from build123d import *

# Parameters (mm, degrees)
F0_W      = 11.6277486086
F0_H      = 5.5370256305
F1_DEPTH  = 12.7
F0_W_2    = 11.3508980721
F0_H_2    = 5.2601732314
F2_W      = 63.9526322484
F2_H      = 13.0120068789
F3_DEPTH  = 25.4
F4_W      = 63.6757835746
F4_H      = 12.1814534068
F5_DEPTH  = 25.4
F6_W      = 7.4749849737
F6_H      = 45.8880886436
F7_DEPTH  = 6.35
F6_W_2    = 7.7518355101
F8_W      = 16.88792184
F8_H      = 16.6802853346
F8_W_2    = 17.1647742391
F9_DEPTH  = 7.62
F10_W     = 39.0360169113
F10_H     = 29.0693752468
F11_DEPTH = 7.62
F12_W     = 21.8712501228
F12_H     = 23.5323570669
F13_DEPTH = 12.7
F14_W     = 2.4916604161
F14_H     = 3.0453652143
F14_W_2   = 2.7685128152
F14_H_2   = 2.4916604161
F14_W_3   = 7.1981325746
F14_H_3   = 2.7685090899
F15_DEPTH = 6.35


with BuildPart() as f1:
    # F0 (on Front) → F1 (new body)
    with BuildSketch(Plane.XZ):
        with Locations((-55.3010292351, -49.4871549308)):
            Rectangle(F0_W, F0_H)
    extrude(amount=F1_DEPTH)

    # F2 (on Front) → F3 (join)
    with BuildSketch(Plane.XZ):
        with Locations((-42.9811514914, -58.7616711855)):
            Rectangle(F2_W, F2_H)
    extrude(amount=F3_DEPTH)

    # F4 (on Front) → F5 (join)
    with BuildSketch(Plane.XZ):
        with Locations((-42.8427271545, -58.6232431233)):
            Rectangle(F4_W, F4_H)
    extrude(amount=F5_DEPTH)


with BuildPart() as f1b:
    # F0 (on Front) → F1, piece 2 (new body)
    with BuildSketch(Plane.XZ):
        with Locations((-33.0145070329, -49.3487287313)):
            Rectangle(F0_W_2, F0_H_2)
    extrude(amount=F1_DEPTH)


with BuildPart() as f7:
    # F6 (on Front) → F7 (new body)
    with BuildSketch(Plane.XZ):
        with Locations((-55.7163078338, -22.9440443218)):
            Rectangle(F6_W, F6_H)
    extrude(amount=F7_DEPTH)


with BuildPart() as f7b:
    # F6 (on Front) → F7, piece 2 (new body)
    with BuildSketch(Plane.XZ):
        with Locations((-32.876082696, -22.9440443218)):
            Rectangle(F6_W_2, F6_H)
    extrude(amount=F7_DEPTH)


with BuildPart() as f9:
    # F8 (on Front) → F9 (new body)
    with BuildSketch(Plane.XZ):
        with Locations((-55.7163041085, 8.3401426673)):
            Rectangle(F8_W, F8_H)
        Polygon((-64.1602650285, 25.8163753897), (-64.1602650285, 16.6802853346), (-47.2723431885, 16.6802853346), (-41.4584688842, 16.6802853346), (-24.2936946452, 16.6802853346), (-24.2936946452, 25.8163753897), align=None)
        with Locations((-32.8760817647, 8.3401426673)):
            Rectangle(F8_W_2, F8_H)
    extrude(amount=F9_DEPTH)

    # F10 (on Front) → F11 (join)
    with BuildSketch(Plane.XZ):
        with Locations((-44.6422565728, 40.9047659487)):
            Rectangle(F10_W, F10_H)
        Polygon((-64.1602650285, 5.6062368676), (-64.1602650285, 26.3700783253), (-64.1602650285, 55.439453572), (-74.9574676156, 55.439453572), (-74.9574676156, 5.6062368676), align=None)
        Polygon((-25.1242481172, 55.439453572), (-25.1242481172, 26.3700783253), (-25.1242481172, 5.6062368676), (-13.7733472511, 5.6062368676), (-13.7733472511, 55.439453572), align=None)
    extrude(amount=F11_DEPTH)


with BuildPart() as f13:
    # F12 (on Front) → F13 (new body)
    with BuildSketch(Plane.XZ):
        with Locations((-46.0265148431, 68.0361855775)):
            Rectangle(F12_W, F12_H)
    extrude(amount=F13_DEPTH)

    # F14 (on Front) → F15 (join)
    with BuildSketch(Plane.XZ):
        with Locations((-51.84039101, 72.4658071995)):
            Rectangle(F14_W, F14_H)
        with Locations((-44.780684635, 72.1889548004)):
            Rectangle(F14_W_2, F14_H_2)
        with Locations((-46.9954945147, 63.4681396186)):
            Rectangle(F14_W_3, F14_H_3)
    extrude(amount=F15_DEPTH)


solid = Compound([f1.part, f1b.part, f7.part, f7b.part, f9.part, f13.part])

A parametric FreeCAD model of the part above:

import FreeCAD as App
import Part
import Sketcher

V = App.Vector

doc = App.newDocument("Part")
params = doc.addObject("Spreadsheet::Sheet", "Params")
for row, (alias, value) in enumerate([
    ("pad1_length", "0.5 in"),
    ("pad2_length", "1 in"),
    ("pad3_length", "1 in"),
    ("pad4_length", "0.5 in"),
    ("pad5_length", "0.25 in"),
    ("pad6_length", "0.25 in"),
    ("pad7_length", "0.3 in"),
    ("pad8_length", "0.3 in"),
    ("pad9_length", "0.5 in"),
    ("pad10_length", "0.25 in"),
], start=1):
    params.set(f"A{row}", alias)
    params.set(f"B{row}", "=" + value)
    params.setAlias(f"B{row}", alias)

body = doc.addObject("PartDesign::Body", "Body")

sketch1 = body.newObject("Sketcher::SketchObject", "Sketch")
sketch1.AttachmentSupport = (doc.getObject("XZ_Plane"), [""])
sketch1.MapMode = "FlatFace"
sketch1.addGeometry(Part.LineSegment(V(-61, -47, 0), V(-61, -52, 0)), False)
sketch1.addGeometry(Part.LineSegment(V(-61, -52, 0), V(-49, -52, 0)), False)
sketch1.addGeometry(Part.LineSegment(V(-49, -52, 0), V(-49, -47, 0)), False)
sketch1.addGeometry(Part.LineSegment(V(-49, -47, 0), V(-61, -47, 0)), False)
sketch1.addConstraint(Sketcher.Constraint("Coincident", 0, 2, 1, 1))
sketch1.addConstraint(Sketcher.Constraint("Coincident", 1, 2, 2, 1))
sketch1.addConstraint(Sketcher.Constraint("Coincident", 2, 2, 3, 1))
sketch1.addConstraint(Sketcher.Constraint("Coincident", 3, 2, 0, 1))
sketch1.addConstraint(Sketcher.Constraint("Vertical", 0))
sketch1.addConstraint(Sketcher.Constraint("Horizontal", 1))
sketch1.addConstraint(Sketcher.Constraint("Vertical", 2))
sketch1.addConstraint(Sketcher.Constraint("Horizontal", 3))
sketch1.addConstraint(Sketcher.Constraint("DistanceX", 1, 1, 1, 2, 11.627749))
sketch1.addConstraint(Sketcher.Constraint("DistanceY", 0, 2, 0, 1, 5.537026))
sketch1.addConstraint(Sketcher.Constraint("DistanceX", 0, 2, -1, 1, 61.114904))
sketch1.addConstraint(Sketcher.Constraint("DistanceY", 0, 2, -1, 1, 52.255668))
pad1 = body.newObject("PartDesign::Pad", "Pad")
pad1.Profile = sketch1
pad1.setExpression("Length", "Params.pad1_length")

sketch2 = body.newObject("Sketcher::SketchObject", "Sketch001")
sketch2.AttachmentSupport = (doc.getObject("XZ_Plane"), [""])
sketch2.MapMode = "FlatFace"
sketch2.addGeometry(Part.LineSegment(V(-75, -52, 0), V(-75, -65, 0)), False)
sketch2.addGeometry(Part.LineSegment(V(-75, -65, 0), V(-11, -65, 0)), False)
sketch2.addGeometry(Part.LineSegment(V(-11, -65, 0), V(-11, -52, 0)), False)
sketch2.addGeometry(Part.LineSegment(V(-11, -52, 0), V(-75, -52, 0)), False)
sketch2.addConstraint(Sketcher.Constraint("Coincident", 0, 2, 1, 1))
sketch2.addConstraint(Sketcher.Constraint("Coincident", 1, 2, 2, 1))
sketch2.addConstraint(Sketcher.Constraint("Coincident", 2, 2, 3, 1))
sketch2.addConstraint(Sketcher.Constraint("Coincident", 3, 2, 0, 1))
sketch2.addConstraint(Sketcher.Constraint("Vertical", 0))
sketch2.addConstraint(Sketcher.Constraint("Horizontal", 1))
sketch2.addConstraint(Sketcher.Constraint("Vertical", 2))
sketch2.addConstraint(Sketcher.Constraint("Horizontal", 3))
sketch2.addConstraint(Sketcher.Constraint("DistanceX", 1, 1, 1, 2, 63.952632))
sketch2.addConstraint(Sketcher.Constraint("DistanceY", 0, 2, 0, 1, 13.012007))
sketch2.addConstraint(Sketcher.Constraint("DistanceX", 0, 2, -1, 1, 74.957468))
sketch2.addConstraint(Sketcher.Constraint("DistanceY", 0, 2, -1, 1, 65.267675))
pad2 = body.newObject("PartDesign::Pad", "Pad001")
pad2.Profile = sketch2
pad2.setExpression("Length", "Params.pad2_length")

sketch3 = body.newObject("Sketcher::SketchObject", "Sketch002")
sketch3.AttachmentSupport = (doc.getObject("XZ_Plane"), [""])
sketch3.MapMode = "FlatFace"
sketch3.addGeometry(Part.LineSegment(V(-75, -53, 0), V(-75, -65, 0)), False)
sketch3.addGeometry(Part.LineSegment(V(-75, -65, 0), V(-11, -65, 0)), False)
sketch3.addGeometry(Part.LineSegment(V(-11, -65, 0), V(-11, -53, 0)), False)
sketch3.addGeometry(Part.LineSegment(V(-11, -53, 0), V(-75, -53, 0)), False)
sketch3.addConstraint(Sketcher.Constraint("Coincident", 0, 2, 1, 1))
sketch3.addConstraint(Sketcher.Constraint("Coincident", 1, 2, 2, 1))
sketch3.addConstraint(Sketcher.Constraint("Coincident", 2, 2, 3, 1))
sketch3.addConstraint(Sketcher.Constraint("Coincident", 3, 2, 0, 1))
sketch3.addConstraint(Sketcher.Constraint("Vertical", 0))
sketch3.addConstraint(Sketcher.Constraint("Horizontal", 1))
sketch3.addConstraint(Sketcher.Constraint("Vertical", 2))
sketch3.addConstraint(Sketcher.Constraint("Horizontal", 3))
sketch3.addConstraint(Sketcher.Constraint("DistanceX", 1, 1, 1, 2, 63.675784))
sketch3.addConstraint(Sketcher.Constraint("DistanceY", 0, 2, 0, 1, 12.181453))
sketch3.addConstraint(Sketcher.Constraint("DistanceX", 0, 2, -1, 1, 74.680619))
sketch3.addConstraint(Sketcher.Constraint("DistanceY", 0, 2, -1, 1, 64.71397))
pad3 = body.newObject("PartDesign::Pad", "Pad002")
pad3.Profile = sketch3
pad3.setExpression("Length", "Params.pad3_length")
body2 = doc.addObject("PartDesign::Body", "Body001")

sketch4 = body2.newObject("Sketcher::SketchObject", "Sketch003")
sketch4.AttachmentSupport = (doc.getObject("XZ_Plane001"), [""])
sketch4.MapMode = "FlatFace"
sketch4.addGeometry(Part.LineSegment(V(-39, -47, 0), V(-39, -52, 0)), False)
sketch4.addGeometry(Part.LineSegment(V(-39, -52, 0), V(-27, -52, 0)), False)
sketch4.addGeometry(Part.LineSegment(V(-27, -52, 0), V(-27, -47, 0)), False)
sketch4.addGeometry(Part.LineSegment(V(-27, -47, 0), V(-39, -47, 0)), False)
sketch4.addConstraint(Sketcher.Constraint("Coincident", 0, 2, 1, 1))
sketch4.addConstraint(Sketcher.Constraint("Coincident", 1, 2, 2, 1))
sketch4.addConstraint(Sketcher.Constraint("Coincident", 2, 2, 3, 1))
sketch4.addConstraint(Sketcher.Constraint("Coincident", 3, 2, 0, 1))
sketch4.addConstraint(Sketcher.Constraint("Vertical", 0))
sketch4.addConstraint(Sketcher.Constraint("Horizontal", 1))
sketch4.addConstraint(Sketcher.Constraint("Vertical", 2))
sketch4.addConstraint(Sketcher.Constraint("Horizontal", 3))
sketch4.addConstraint(Sketcher.Constraint("DistanceX", 1, 1, 1, 2, 11.350898))
sketch4.addConstraint(Sketcher.Constraint("DistanceY", 0, 2, 0, 1, 5.260173))
sketch4.addConstraint(Sketcher.Constraint("DistanceX", 0, 2, -1, 1, 38.689956))
sketch4.addConstraint(Sketcher.Constraint("DistanceY", 0, 2, -1, 1, 51.978815))
pad4 = body2.newObject("PartDesign::Pad", "Pad003")
pad4.Profile = sketch4
pad4.setExpression("Length", "Params.pad4_length")
body3 = doc.addObject("PartDesign::Body", "Body002")

sketch5 = body3.newObject("Sketcher::SketchObject", "Sketch004")
sketch5.AttachmentSupport = (doc.getObject("XZ_Plane002"), [""])
sketch5.MapMode = "FlatFace"
sketch5.addGeometry(Part.LineSegment(V(-59, 0, 0), V(-59, -46, 0)), False)
sketch5.addGeometry(Part.LineSegment(V(-59, -46, 0), V(-52, -46, 0)), False)
sketch5.addGeometry(Part.LineSegment(V(-52, -46, 0), V(-52, 0, 0)), False)
sketch5.addGeometry(Part.LineSegment(V(-52, 0, 0), V(-59, 0, 0)), False)
sketch5.addConstraint(Sketcher.Constraint("Coincident", 0, 2, 1, 1))
sketch5.addConstraint(Sketcher.Constraint("Coincident", 1, 2, 2, 1))
sketch5.addConstraint(Sketcher.Constraint("Coincident", 2, 2, 3, 1))
sketch5.addConstraint(Sketcher.Constraint("Coincident", 3, 2, 0, 1))
sketch5.addConstraint(Sketcher.Constraint("Vertical", 0))
sketch5.addConstraint(Sketcher.Constraint("Horizontal", 1))
sketch5.addConstraint(Sketcher.Constraint("Vertical", 2))
sketch5.addConstraint(Sketcher.Constraint("Horizontal", 3))
sketch5.addConstraint(Sketcher.Constraint("PointOnObject", 2, 2, -1))
sketch5.addConstraint(Sketcher.Constraint("DistanceY", 0, 2, 0, 1, 45.888089))
sketch5.addConstraint(Sketcher.Constraint("DistanceX", 0, 2, -1, 1, 59.4538))
sketch5.addConstraint(Sketcher.Constraint("DistanceX", 1, 1, 1, 2, 7.474985))
pad5 = body3.newObject("PartDesign::Pad", "Pad004")
pad5.Profile = sketch5
pad5.setExpression("Length", "Params.pad5_length")
body4 = doc.addObject("PartDesign::Body", "Body003")

sketch6 = body4.newObject("Sketcher::SketchObject", "Sketch005")
sketch6.AttachmentSupport = (doc.getObject("XZ_Plane003"), [""])
sketch6.MapMode = "FlatFace"
sketch6.addGeometry(Part.LineSegment(V(-37, 0, 0), V(-37, -46, 0)), False)
sketch6.addGeometry(Part.LineSegment(V(-37, -46, 0), V(-29, -46, 0)), False)
sketch6.addGeometry(Part.LineSegment(V(-29, -46, 0), V(-29, 0, 0)), False)
sketch6.addGeometry(Part.LineSegment(V(-29, 0, 0), V(-37, 0, 0)), False)
sketch6.addConstraint(Sketcher.Constraint("Coincident", 0, 2, 1, 1))
sketch6.addConstraint(Sketcher.Constraint("Coincident", 1, 2, 2, 1))
sketch6.addConstraint(Sketcher.Constraint("Coincident", 2, 2, 3, 1))
sketch6.addConstraint(Sketcher.Constraint("Coincident", 3, 2, 0, 1))
sketch6.addConstraint(Sketcher.Constraint("Vertical", 0))
sketch6.addConstraint(Sketcher.Constraint("Horizontal", 1))
sketch6.addConstraint(Sketcher.Constraint("Vertical", 2))
sketch6.addConstraint(Sketcher.Constraint("Horizontal", 3))
sketch6.addConstraint(Sketcher.Constraint("PointOnObject", 2, 2, -1))
sketch6.addConstraint(Sketcher.Constraint("DistanceY", 0, 2, 0, 1, 45.888089))
sketch6.addConstraint(Sketcher.Constraint("DistanceX", 0, 2, -1, 1, 36.752))
sketch6.addConstraint(Sketcher.Constraint("DistanceX", 1, 1, 1, 2, 7.751836))
pad6 = body4.newObject("PartDesign::Pad", "Pad005")
pad6.Profile = sketch6
pad6.setExpression("Length", "Params.pad6_length")
body5 = doc.addObject("PartDesign::Body", "Body004")

sketch7 = body5.newObject("Sketcher::SketchObject", "Sketch006")
sketch7.AttachmentSupport = (doc.getObject("XZ_Plane004"), [""])
sketch7.MapMode = "FlatFace"
sketch7.addGeometry(Part.LineSegment(V(-64, 0, 0), V(-47, 0, 0)), False)
sketch7.addGeometry(Part.LineSegment(V(-47, 0, 0), V(-47, 17, 0)), False)
sketch7.addGeometry(Part.LineSegment(V(-47, 17, 0), V(-41, 17, 0)), False)
sketch7.addGeometry(Part.LineSegment(V(-41, 17, 0), V(-41, 0, 0)), False)
sketch7.addGeometry(Part.LineSegment(V(-41, 0, 0), V(-24, 0, 0)), False)
sketch7.addGeometry(Part.LineSegment(V(-24, 0, 0), V(-24, 17, 0)), False)
sketch7.addGeometry(Part.LineSegment(V(-24, 17, 0), V(-24, 26, 0)), False)
sketch7.addGeometry(Part.LineSegment(V(-24, 26, 0), V(-64, 26, 0)), False)
sketch7.addGeometry(Part.LineSegment(V(-64, 26, 0), V(-64, 0, 0)), False)
sketch7.addConstraint(Sketcher.Constraint("Coincident", 0, 2, 1, 1))
sketch7.addConstraint(Sketcher.Constraint("Coincident", 1, 2, 2, 1))
sketch7.addConstraint(Sketcher.Constraint("Coincident", 2, 2, 3, 1))
sketch7.addConstraint(Sketcher.Constraint("Coincident", 3, 2, 4, 1))
sketch7.addConstraint(Sketcher.Constraint("Coincident", 4, 2, 5, 1))
sketch7.addConstraint(Sketcher.Constraint("Coincident", 5, 2, 6, 1))
sketch7.addConstraint(Sketcher.Constraint("Coincident", 6, 2, 7, 1))
sketch7.addConstraint(Sketcher.Constraint("Coincident", 7, 2, 8, 1))
sketch7.addConstraint(Sketcher.Constraint("Coincident", 8, 2, 0, 1))
sketch7.addConstraint(Sketcher.Constraint("Horizontal", 0))
sketch7.addConstraint(Sketcher.Constraint("Vertical", 1))
sketch7.addConstraint(Sketcher.Constraint("Horizontal", 2))
sketch7.addConstraint(Sketcher.Constraint("Vertical", 3))
sketch7.addConstraint(Sketcher.Constraint("Horizontal", 4))
sketch7.addConstraint(Sketcher.Constraint("Vertical", 5))
sketch7.addConstraint(Sketcher.Constraint("Vertical", 6))
sketch7.addConstraint(Sketcher.Constraint("Horizontal", 7))
sketch7.addConstraint(Sketcher.Constraint("Vertical", 8))
sketch7.addConstraint(Sketcher.Constraint("PointOnObject", 0, 2, -1))
sketch7.addConstraint(Sketcher.Constraint("PointOnObject", 3, 2, -1))
sketch7.addConstraint(Sketcher.Constraint("Horizontal", 2, 2, 5, 2))
sketch7.addConstraint(Sketcher.Constraint("DistanceX", 0, 1, 0, 2, 16.887922))
sketch7.addConstraint(Sketcher.Constraint("DistanceX", 7, 2, 7, 1, 39.86657))
sketch7.addConstraint(Sketcher.Constraint("DistanceY", 6, 1, 6, 2, 9.13609))
sketch7.addConstraint(Sketcher.Constraint("DistanceX", 2, 1, 2, 2, 5.813874))
sketch7.addConstraint(Sketcher.Constraint("DistanceY", 1, 1, 1, 2, 16.680285))
sketch7.addConstraint(Sketcher.Constraint("DistanceX", 2, 2, -1, 1, 41.458469))
pad7 = body5.newObject("PartDesign::Pad", "Pad006")
pad7.Profile = sketch7
pad7.setExpression("Length", "Params.pad7_length")

sketch8 = body5.newObject("Sketcher::SketchObject", "Sketch007")
sketch8.AttachmentSupport = (doc.getObject("XZ_Plane004"), [""])
sketch8.MapMode = "FlatFace"
sketch8.addGeometry(Part.LineSegment(V(-64, 26, 0), V(-25, 26, 0)), False)
sketch8.addGeometry(Part.LineSegment(V(-25, 26, 0), V(-25, 6, 0)), False)
sketch8.addGeometry(Part.LineSegment(V(-25, 6, 0), V(-14, 6, 0)), False)
sketch8.addGeometry(Part.LineSegment(V(-14, 6, 0), V(-14, 55, 0)), False)
sketch8.addGeometry(Part.LineSegment(V(-14, 55, 0), V(-25, 55, 0)), False)
sketch8.addGeometry(Part.LineSegment(V(-25, 55, 0), V(-64, 55, 0)), False)
sketch8.addGeometry(Part.LineSegment(V(-64, 55, 0), V(-75, 55, 0)), False)
sketch8.addGeometry(Part.LineSegment(V(-75, 55, 0), V(-75, 6, 0)), False)
sketch8.addGeometry(Part.LineSegment(V(-75, 6, 0), V(-64, 6, 0)), False)
sketch8.addGeometry(Part.LineSegment(V(-64, 6, 0), V(-64, 26, 0)), False)
sketch8.addConstraint(Sketcher.Constraint("Coincident", 0, 2, 1, 1))
sketch8.addConstraint(Sketcher.Constraint("Coincident", 1, 2, 2, 1))
sketch8.addConstraint(Sketcher.Constraint("Coincident", 2, 2, 3, 1))
sketch8.addConstraint(Sketcher.Constraint("Coincident", 3, 2, 4, 1))
sketch8.addConstraint(Sketcher.Constraint("Coincident", 4, 2, 5, 1))
sketch8.addConstraint(Sketcher.Constraint("Coincident", 5, 2, 6, 1))
sketch8.addConstraint(Sketcher.Constraint("Coincident", 6, 2, 7, 1))
sketch8.addConstraint(Sketcher.Constraint("Coincident", 7, 2, 8, 1))
sketch8.addConstraint(Sketcher.Constraint("Coincident", 8, 2, 9, 1))
sketch8.addConstraint(Sketcher.Constraint("Coincident", 9, 2, 0, 1))
sketch8.addConstraint(Sketcher.Constraint("Horizontal", 0))
sketch8.addConstraint(Sketcher.Constraint("Vertical", 1))
sketch8.addConstraint(Sketcher.Constraint("Horizontal", 2))
sketch8.addConstraint(Sketcher.Constraint("Vertical", 3))
sketch8.addConstraint(Sketcher.Constraint("Horizontal", 4))
sketch8.addConstraint(Sketcher.Constraint("Horizontal", 5))
sketch8.addConstraint(Sketcher.Constraint("Horizontal", 6))
sketch8.addConstraint(Sketcher.Constraint("Vertical", 7))
sketch8.addConstraint(Sketcher.Constraint("Horizontal", 8))
sketch8.addConstraint(Sketcher.Constraint("Vertical", 9))
sketch8.addConstraint(Sketcher.Constraint("Horizontal", 2, 2, 7, 2))
sketch8.addConstraint(Sketcher.Constraint("Vertical", 1, 2, 4, 2))
sketch8.addConstraint(Sketcher.Constraint("Vertical", 5, 2, 8, 2))
sketch8.addConstraint(Sketcher.Constraint("DistanceX", 2, 1, 2, 2, 11.350901))
sketch8.addConstraint(Sketcher.Constraint("DistanceY", 1, 2, 1, 1, 20.763841))
sketch8.addConstraint(Sketcher.Constraint("DistanceX", 0, 1, 0, 2, 39.036017))
sketch8.addConstraint(Sketcher.Constraint("DistanceX", 6, 2, 6, 1, 10.797203))
sketch8.addConstraint(Sketcher.Constraint("DistanceY", 3, 1, 3, 2, 49.833217))
sketch8.addConstraint(Sketcher.Constraint("DistanceX", 0, 2, -1, 1, 25.124248))
sketch8.addConstraint(Sketcher.Constraint("DistanceY", -1, 1, 0, 2, 26.370078))
pad8 = body5.newObject("PartDesign::Pad", "Pad007")
pad8.Profile = sketch8
pad8.setExpression("Length", "Params.pad8_length")
body6 = doc.addObject("PartDesign::Body", "Body005")

sketch9 = body6.newObject("Sketcher::SketchObject", "Sketch008")
sketch9.AttachmentSupport = (doc.getObject("XZ_Plane005"), [""])
sketch9.MapMode = "FlatFace"
sketch9.addGeometry(Part.LineSegment(V(-57, 80, 0), V(-57, 56, 0)), False)
sketch9.addGeometry(Part.LineSegment(V(-57, 56, 0), V(-35, 56, 0)), False)
sketch9.addGeometry(Part.LineSegment(V(-35, 56, 0), V(-35, 80, 0)), False)
sketch9.addGeometry(Part.LineSegment(V(-35, 80, 0), V(-57, 80, 0)), False)
sketch9.addConstraint(Sketcher.Constraint("Coincident", 0, 2, 1, 1))
sketch9.addConstraint(Sketcher.Constraint("Coincident", 1, 2, 2, 1))
sketch9.addConstraint(Sketcher.Constraint("Coincident", 2, 2, 3, 1))
sketch9.addConstraint(Sketcher.Constraint("Coincident", 3, 2, 0, 1))
sketch9.addConstraint(Sketcher.Constraint("Vertical", 0))
sketch9.addConstraint(Sketcher.Constraint("Horizontal", 1))
sketch9.addConstraint(Sketcher.Constraint("Vertical", 2))
sketch9.addConstraint(Sketcher.Constraint("Horizontal", 3))
sketch9.addConstraint(Sketcher.Constraint("DistanceX", 1, 1, 1, 2, 21.87125))
sketch9.addConstraint(Sketcher.Constraint("DistanceY", 0, 2, 0, 1, 23.532357))
sketch9.addConstraint(Sketcher.Constraint("DistanceX", 0, 2, -1, 1, 56.96214))
sketch9.addConstraint(Sketcher.Constraint("DistanceY", -1, 1, 0, 2, 56.270007))
pad9 = body6.newObject("PartDesign::Pad", "Pad008")
pad9.Profile = sketch9
pad9.setExpression("Length", "Params.pad9_length")

sketch10 = body6.newObject("Sketcher::SketchObject", "Sketch009")
sketch10.AttachmentSupport = (doc.getObject("XZ_Plane005"), [""])
sketch10.MapMode = "FlatFace"
sketch10.addGeometry(Part.LineSegment(V(-53.1, 74, 0), V(-53.1, 70.9, 0)), False)
sketch10.addGeometry(Part.LineSegment(V(-53.1, 70.9, 0), V(-50.6, 70.9, 0)), False)
sketch10.addGeometry(Part.LineSegment(V(-50.6, 70.9, 0), V(-50.6, 74, 0)), False)
sketch10.addGeometry(Part.LineSegment(V(-50.6, 74, 0), V(-53.1, 74, 0)), False)
sketch10.addGeometry(Part.LineSegment(V(-46.2, 73.4, 0), V(-46.2, 70.9, 0)), False)
sketch10.addGeometry(Part.LineSegment(V(-46.2, 70.9, 0), V(-43.4, 70.9, 0)), False)
sketch10.addGeometry(Part.LineSegment(V(-43.4, 70.9, 0), V(-43.4, 73.4, 0)), False)
sketch10.addGeometry(Part.LineSegment(V(-43.4, 73.4, 0), V(-46.2, 73.4, 0)), False)
sketch10.addGeometry(Part.LineSegment(V(-50.6, 64.9, 0), V(-50.6, 62.1, 0)), False)
sketch10.addGeometry(Part.LineSegment(V(-50.6, 62.1, 0), V(-43.4, 62.1, 0)), False)
sketch10.addGeometry(Part.LineSegment(V(-43.4, 62.1, 0), V(-43.4, 64.9, 0)), False)
sketch10.addGeometry(Part.LineSegment(V(-43.4, 64.9, 0), V(-50.6, 64.9, 0)), False)
sketch10.addConstraint(Sketcher.Constraint("Coincident", 0, 2, 1, 1))
sketch10.addConstraint(Sketcher.Constraint("Coincident", 1, 2, 2, 1))
sketch10.addConstraint(Sketcher.Constraint("Coincident", 2, 2, 3, 1))
sketch10.addConstraint(Sketcher.Constraint("Coincident", 3, 2, 0, 1))
sketch10.addConstraint(Sketcher.Constraint("Coincident", 4, 2, 5, 1))
sketch10.addConstraint(Sketcher.Constraint("Coincident", 5, 2, 6, 1))
sketch10.addConstraint(Sketcher.Constraint("Coincident", 6, 2, 7, 1))
sketch10.addConstraint(Sketcher.Constraint("Coincident", 7, 2, 4, 1))
sketch10.addConstraint(Sketcher.Constraint("Coincident", 8, 2, 9, 1))
sketch10.addConstraint(Sketcher.Constraint("Coincident", 9, 2, 10, 1))
sketch10.addConstraint(Sketcher.Constraint("Coincident", 10, 2, 11, 1))
sketch10.addConstraint(Sketcher.Constraint("Coincident", 11, 2, 8, 1))
sketch10.addConstraint(Sketcher.Constraint("Vertical", 0))
sketch10.addConstraint(Sketcher.Constraint("Horizontal", 1))
sketch10.addConstraint(Sketcher.Constraint("Vertical", 2))
sketch10.addConstraint(Sketcher.Constraint("Horizontal", 3))
sketch10.addConstraint(Sketcher.Constraint("Vertical", 4))
sketch10.addConstraint(Sketcher.Constraint("Horizontal", 5))
sketch10.addConstraint(Sketcher.Constraint("Vertical", 6))
sketch10.addConstraint(Sketcher.Constraint("Horizontal", 7))
sketch10.addConstraint(Sketcher.Constraint("Vertical", 8))
sketch10.addConstraint(Sketcher.Constraint("Horizontal", 9))
sketch10.addConstraint(Sketcher.Constraint("Vertical", 10))
sketch10.addConstraint(Sketcher.Constraint("Horizontal", 11))
sketch10.addConstraint(Sketcher.Constraint("Horizontal", 1, 2, 4, 2))
sketch10.addConstraint(Sketcher.Constraint("Vertical", 2, 2, 8, 2))
sketch10.addConstraint(Sketcher.Constraint("Vertical", 6, 2, 9, 2))
sketch10.addConstraint(Sketcher.Constraint("Equal", 3, 4))
sketch10.addConstraint(Sketcher.Constraint("DistanceX", 1, 1, 1, 2, 2.49166))
sketch10.addConstraint(Sketcher.Constraint("DistanceY", 8, 2, 8, 1, 2.768509))
sketch10.addConstraint(Sketcher.Constraint("DistanceY", 9, 2, 6, 2, 11.3509))
sketch10.addConstraint(Sketcher.Constraint("DistanceX", 5, 1, 5, 2, 2.768513))
sketch10.addConstraint(Sketcher.Constraint("DistanceX", 9, 1, 9, 2, 7.198133))
sketch10.addConstraint(Sketcher.Constraint("DistanceY", 0, 2, 0, 1, 3.045365))
sketch10.addConstraint(Sketcher.Constraint("DistanceX", 0, 2, -1, 1, 53.086221))
sketch10.addConstraint(Sketcher.Constraint("DistanceY", -1, 1, 2, 2, 73.98849))
pad10 = body6.newObject("PartDesign::Pad", "Pad009")
pad10.Profile = sketch10
pad10.setExpression("Length", "Params.pad10_length")

doc.recompute()
